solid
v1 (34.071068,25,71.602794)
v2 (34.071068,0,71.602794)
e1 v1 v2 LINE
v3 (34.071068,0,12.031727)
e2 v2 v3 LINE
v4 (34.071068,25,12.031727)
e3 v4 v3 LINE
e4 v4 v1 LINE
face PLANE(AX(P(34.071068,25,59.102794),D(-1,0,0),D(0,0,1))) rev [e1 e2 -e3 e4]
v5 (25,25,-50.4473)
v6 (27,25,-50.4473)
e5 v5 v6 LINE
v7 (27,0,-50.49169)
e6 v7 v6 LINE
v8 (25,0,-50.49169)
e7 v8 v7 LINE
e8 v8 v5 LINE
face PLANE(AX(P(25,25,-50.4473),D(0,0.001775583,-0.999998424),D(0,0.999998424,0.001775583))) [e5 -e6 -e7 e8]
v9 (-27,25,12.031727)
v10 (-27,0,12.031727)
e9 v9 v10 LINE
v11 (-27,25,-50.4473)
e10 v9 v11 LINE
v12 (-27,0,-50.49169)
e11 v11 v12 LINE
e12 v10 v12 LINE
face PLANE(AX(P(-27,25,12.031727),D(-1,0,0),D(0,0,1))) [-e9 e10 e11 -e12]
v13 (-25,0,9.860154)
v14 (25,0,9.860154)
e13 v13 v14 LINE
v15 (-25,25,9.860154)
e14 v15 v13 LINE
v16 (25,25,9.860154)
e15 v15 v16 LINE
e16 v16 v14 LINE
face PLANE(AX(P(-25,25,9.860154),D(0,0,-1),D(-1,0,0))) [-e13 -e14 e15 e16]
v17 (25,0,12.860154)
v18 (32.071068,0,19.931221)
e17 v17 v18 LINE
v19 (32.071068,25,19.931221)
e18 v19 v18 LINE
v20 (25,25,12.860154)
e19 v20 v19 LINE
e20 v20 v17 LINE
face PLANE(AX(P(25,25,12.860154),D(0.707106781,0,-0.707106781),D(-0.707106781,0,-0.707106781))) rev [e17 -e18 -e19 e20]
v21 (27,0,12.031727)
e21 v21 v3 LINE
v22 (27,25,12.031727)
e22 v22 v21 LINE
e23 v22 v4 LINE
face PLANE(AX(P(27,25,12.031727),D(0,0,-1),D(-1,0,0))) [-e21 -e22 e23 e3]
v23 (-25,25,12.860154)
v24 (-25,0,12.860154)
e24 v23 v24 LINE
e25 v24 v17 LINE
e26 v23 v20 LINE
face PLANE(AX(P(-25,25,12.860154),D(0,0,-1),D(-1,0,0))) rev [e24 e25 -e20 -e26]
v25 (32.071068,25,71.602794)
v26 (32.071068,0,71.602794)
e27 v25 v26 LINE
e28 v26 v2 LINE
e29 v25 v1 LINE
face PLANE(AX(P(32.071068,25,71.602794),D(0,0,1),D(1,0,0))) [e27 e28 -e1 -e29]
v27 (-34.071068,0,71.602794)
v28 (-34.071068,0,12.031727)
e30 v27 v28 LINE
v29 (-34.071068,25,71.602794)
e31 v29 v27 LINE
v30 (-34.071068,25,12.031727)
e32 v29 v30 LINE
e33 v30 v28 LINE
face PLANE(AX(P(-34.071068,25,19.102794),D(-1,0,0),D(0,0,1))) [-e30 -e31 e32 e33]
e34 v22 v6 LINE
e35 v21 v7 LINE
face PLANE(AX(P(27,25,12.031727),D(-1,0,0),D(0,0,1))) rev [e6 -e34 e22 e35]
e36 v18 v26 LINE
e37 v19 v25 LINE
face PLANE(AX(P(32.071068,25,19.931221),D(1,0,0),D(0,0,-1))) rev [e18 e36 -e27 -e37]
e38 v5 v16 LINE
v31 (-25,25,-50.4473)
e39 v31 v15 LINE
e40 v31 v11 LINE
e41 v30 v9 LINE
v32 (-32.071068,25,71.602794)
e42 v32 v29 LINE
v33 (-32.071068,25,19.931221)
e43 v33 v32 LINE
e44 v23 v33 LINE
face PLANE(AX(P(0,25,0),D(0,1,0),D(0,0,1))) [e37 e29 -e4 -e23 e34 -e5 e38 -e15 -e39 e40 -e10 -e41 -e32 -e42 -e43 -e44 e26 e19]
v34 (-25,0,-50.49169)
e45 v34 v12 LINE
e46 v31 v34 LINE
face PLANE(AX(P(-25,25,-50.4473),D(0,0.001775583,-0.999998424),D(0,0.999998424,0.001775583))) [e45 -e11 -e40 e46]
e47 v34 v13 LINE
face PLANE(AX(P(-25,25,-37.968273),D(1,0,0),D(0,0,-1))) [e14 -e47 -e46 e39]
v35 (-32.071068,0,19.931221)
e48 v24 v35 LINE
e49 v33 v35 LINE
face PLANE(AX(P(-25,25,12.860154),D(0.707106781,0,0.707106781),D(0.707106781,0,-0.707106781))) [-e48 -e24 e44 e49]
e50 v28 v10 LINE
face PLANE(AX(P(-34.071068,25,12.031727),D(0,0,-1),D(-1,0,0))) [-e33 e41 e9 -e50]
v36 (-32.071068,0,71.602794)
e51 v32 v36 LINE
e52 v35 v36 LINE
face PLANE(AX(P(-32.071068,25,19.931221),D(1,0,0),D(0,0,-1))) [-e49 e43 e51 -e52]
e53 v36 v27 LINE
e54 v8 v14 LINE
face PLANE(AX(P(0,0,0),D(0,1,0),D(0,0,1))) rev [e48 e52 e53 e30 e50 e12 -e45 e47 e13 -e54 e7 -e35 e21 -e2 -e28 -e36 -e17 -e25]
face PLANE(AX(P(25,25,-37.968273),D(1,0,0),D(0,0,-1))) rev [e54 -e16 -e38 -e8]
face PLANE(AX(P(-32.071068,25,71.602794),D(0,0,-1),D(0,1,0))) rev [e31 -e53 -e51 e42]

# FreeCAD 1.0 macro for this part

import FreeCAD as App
import Part
import Sketcher

V = App.Vector
Q = App.Units.Quantity

doc = App.newDocument("Part")
body = doc.addObject("PartDesign::Body", "Body")

sketch1 = body.newObject("Sketcher::SketchObject", "Sketch")
sketch1.AttachmentSupport = (doc.getObject("XZ_Plane"), [""])
sketch1.MapMode = "FlatFace"
sketch1.addGeometry(Part.LineSegment(V(-34.071068, 12.031727, 0), V(-34.071068, 59.102794, 0)), False)
sketch1.addGeometry(Part.LineSegment(V(-34.071068, 59.102794, 0), V(-32.071068, 59.102794, 0)), False)
sketch1.addGeometry(Part.LineSegment(V(-32.071068, 59.102794, 0), V(-32.071068, 19.931221, 0)), False)
sketch1.addGeometry(Part.LineSegment(V(-32.071068, 19.931221, 0), V(-25, 12.860154, 0)), False)
sketch1.addGeometry(Part.LineSegment(V(-25, 12.860154, 0), V(25, 12.860154, 0)), False)
sketch1.addGeometry(Part.LineSegment(V(25, 12.860154, 0), V(32.071068, 19.931221, 0)), False)
sketch1.addGeometry(Part.LineSegment(V(32.071068, 19.931221, 0), V(32.071068, 59.102794, 0)), False)
sketch1.addGeometry(Part.LineSegment(V(32.071068, 59.102794, 0), V(34.071068, 59.102794, 0)), False)
sketch1.addGeometry(Part.LineSegment(V(34.071068, 59.102794, 0), V(34.071068, 12.031727, 0)), False)
sketch1.addGeometry(Part.LineSegment(V(34.071068, 12.031727, 0), V(27, 12.031727, 0)), False)
sketch1.addGeometry(Part.LineSegment(V(27, 12.031727, 0), V(27, -37.968273, 0)), False)
sketch1.addGeometry(Part.LineSegment(V(27, -37.968273, 0), V(25, -37.968273, 0)), False)
sketch1.addGeometry(Part.LineSegment(V(25, -37.968273, 0), V(25, 9.860154, 0)), False)
sketch1.addGeometry(Part.LineSegment(V(25, 9.860154, 0), V(-25, 9.860154, 0)), False)
sketch1.addGeometry(Part.LineSegment(V(-25, 9.860154, 0), V(-25, -37.968273, 0)), False)
sketch1.addGeometry(Part.LineSegment(V(-25, -37.968273, 0), V(-27, -37.968273, 0)), False)
sketch1.addGeometry(Part.LineSegment(V(-27, -37.968273, 0), V(-27, 12.031727, 0)), False)
sketch1.addGeometry(Part.LineSegment(V(-27, 12.031727, 0), V(-34.071068, 12.031727, 0)), False)
sketch1.addConstraint(Sketcher.Constraint("Coincident", 0, 2, 1, 1))
sketch1.addConstraint(Sketcher.Constraint("Coincident", 1, 2, 2, 1))
sketch1.addConstraint(Sketcher.Constraint("Coincident", 2, 2, 3, 1))
sketch1.addConstraint(Sketcher.Constraint("Coincident", 3, 2, 4, 1))
sketch1.addConstraint(Sketcher.Constraint("Coincident", 4, 2, 5, 1))
sketch1.addConstraint(Sketcher.Constraint("Coincident", 5, 2, 6, 1))
sketch1.addConstraint(Sketcher.Constraint("Coincident", 6, 2, 7, 1))
sketch1.addConstraint(Sketcher.Constraint("Coincident", 7, 2, 8, 1))
sketch1.addConstraint(Sketcher.Constraint("Coincident", 8, 2, 9, 1))
sketch1.addConstraint(Sketcher.Constraint("Coincident", 9, 2, 10, 1))
sketch1.addConstraint(Sketcher.Constraint("Coincident", 10, 2, 11, 1))
sketch1.addConstraint(Sketcher.Constraint("Coincident", 11, 2, 12, 1))
sketch1.addConstraint(Sketcher.Constraint("Coincident", 12, 2, 13, 1))
sketch1.addConstraint(Sketcher.Constraint("Coincident", 13, 2, 14, 1))
sketch1.addConstraint(Sketcher.Constraint("Coincident", 14, 2, 15, 1))
sketch1.addConstraint(Sketcher.Constraint("Coincident", 15, 2, 16, 1))
sketch1.addConstraint(Sketcher.Constraint("Coincident", 16, 2, 17, 1))
sketch1.addConstraint(Sketcher.Constraint("Coincident", 17, 2, 0, 1))
sketch1.addConstraint(Sketcher.Constraint("Vertical", 0))
sketch1.addConstraint(Sketcher.Constraint("Horizontal", 1))
sketch1.addConstraint(Sketcher.Constraint("Vertical", 2))
sketch1.addConstraint(Sketcher.Constraint("Horizontal", 4))
sketch1.addConstraint(Sketcher.Constraint("Vertical", 6))
sketch1.addConstraint(Sketcher.Constraint("Horizontal", 7))
sketch1.addConstraint(Sketcher.Constraint("Vertical", 8))
sketch1.addConstraint(Sketcher.Constraint("Horizontal", 9))
sketch1.addConstraint(Sketcher.Constraint("Vertical", 10))
sketch1.addConstraint(Sketcher.Constraint("Horizontal", 11))
sketch1.addConstraint(Sketcher.Constraint("Vertical", 12))
sketch1.addConstraint(Sketcher.Constraint("Horizontal", 13))
sketch1.addConstraint(Sketcher.Constraint("Vertical", 14))
sketch1.addConstraint(Sketcher.Constraint("Horizontal", 15))
sketch1.addConstraint(Sketcher.Constraint("Vertical", 16))
sketch1.addConstraint(Sketcher.Constraint("Horizontal", 17))
sketch1.addConstraint(Sketcher.Constraint("Symmetric", 2, 2, 5, 2, -2))
sketch1.addConstraint(Sketcher.Constraint("Symmetric", 0, 2, 7, 2, -2))
sketch1.addConstraint(Sketcher.Constraint("Symmetric", 11, 2, 14, 2, -2))
sketch1.addConstraint(Sketcher.Constraint("Symmetric", 9, 2, 16, 2, -2))
sketch1.addConstraint(Sketcher.Constraint("Perpendicular", 3, 5))
sketch1.addConstraint(Sketcher.Constraint("Vertical", 4, 2, 11, 2))
sketch1.addConstraint(Sketcher.Constraint("Vertical", 3, 2, 13, 2))
sketch1.addConstraint(Sketcher.Constraint("Equal", 7, 11))
sketch1.addConstraint(Sketcher.Constraint("Equal", 13, 10))
sketch1.addConstraint(Sketcher.Constraint("DistanceX", 1, 1, 1, 2, Q("2 mm")))
sketch1.addConstraint(Sketcher.Constraint("DistanceX", 4, 1, 4, 2, Q("50 mm")))
sketch1.addConstraint(Sketcher.Constraint("Distance", 3, Q("10 mm")))
sketch1.addConstraint(Sketcher.Constraint("DistanceY", 12, 2, 4, 2, Q("3 mm")))
sketch1.addConstraint(Sketcher.Constraint("DistanceY", 0, 1, 0, 2, Q("47.071068 mm")))
sketch1.addConstraint(Sketcher.Constraint("DistanceY", 2, 2, 2, 1, Q("39.171573 mm")))
sketch1.addConstraint(Sketcher.Constraint("DistanceY", -1, 1, 2, 2, Q("19.931221 mm")))
pad1 = body.newObject("PartDesign::Pad", "Pad")
pad1.Profile = sketch1
pad1.Length = 25
pad1.Reversed = True

sketch2 = body.newObject("Sketcher::SketchObject", "Sketch001")
sketch2.AttachmentSupport = (doc.getObject("YZ_Plane"), [""])
sketch2.MapMode = "FlatFace"
sketch2.AttachmentOffset = App.Placement(V(0, 0, 34.071068), App.Rotation())
sketch2.addGeometry(Part.LineSegment(V(25, 71.602794, 0), V(0, 71.602794, 0)), False)
sketch2.addGeometry(Part.LineSegment(V(0, 71.602794, 0), V(0, 12.031727, 0)), False)
sketch2.addGeometry(Part.LineSegment(V(0, 12.031727, 0), V(25, 12.031727, 0)), False)
sketch2.addGeometry(Part.LineSegment(V(25, 12.031727, 0), V(25, 71.602794, 0)), False)
sketch2.addConstraint(Sketcher.Constraint("Coincident", 0, 2, 1, 1))
sketch2.addConstraint(Sketcher.Constraint("Coincident", 1, 2, 2, 1))
sketch2.addConstraint(Sketcher.Constraint("Coincident", 2, 2, 3, 1))
sketch2.addConstraint(Sketcher.Constraint("Coincident", 3, 2, 0, 1))
sketch2.addConstraint(Sketcher.Constraint("Horizontal", 0))
sketch2.addConstraint(Sketcher.Constraint("Vertical", 1))
sketch2.addConstraint(Sketcher.Constraint("Horizontal", 2))
sketch2.addConstraint(Sketcher.Constraint("Vertical", 3))
sketch2.addConstraint(Sketcher.Constraint("PointOnObject", 0, 2, -2))
sketch2.addConstraint(Sketcher.Constraint("DistanceX", 0, 2, 0, 1, Q("25 mm")))
sketch2.addConstraint(Sketcher.Constraint("DistanceY", 1, 2, 1, 1, Q("59.571068 mm")))
sketch2.addConstraint(Sketcher.Constraint("DistanceY", -1, 1, 0, 2, Q("71.602794 mm")))
pad2 = body.newObject("PartDesign::Pad", "Pad001")
pad2.Profile = sketch2
pad2.Length = 2
pad2.Reversed = True

sketch3 = body.newObject("Sketcher::SketchObject", "Sketch002")
sketch3.AttachmentSupport = (doc.getObject("YZ_Plane"), [""])
sketch3.MapMode = "FlatFace"
sketch3.AttachmentOffset = App.Placement(V(0, 0, 27), App.Rotation())
sketch3.addGeometry(Part.LineSegment(V(25, -50.4473, 0), V(25, -37.9473, 0)), False)
sketch3.addGeometry(Part.LineSegment(V(25, -37.9473, 0), V(0, -37.9473, 0)), False)
sketch3.addGeometry(Part.LineSegment(V(0, -37.9473, 0), V(0, -50.49169, 0)), False)
sketch3.addGeometry(Part.LineSegment(V(0, -50.49169, 0), V(25, -50.4473, 0)), False)
sketch3.addConstraint(Sketcher.Constraint("Coincident", 0, 2, 1, 1))
sketch3.addConstraint(Sketcher.Constraint("Coincident", 1, 2, 2, 1))
sketch3.addConstraint(Sketcher.Constraint("Coincident", 2, 2, 3, 1))
sketch3.addConstraint(Sketcher.Constraint("Coincident", 3, 2, 0, 1))
sketch3.addConstraint(Sketcher.Constraint("Vertical", 0))
sketch3.addConstraint(Sketcher.Constraint("Horizontal", 1))
sketch3.addConstraint(Sketcher.Constraint("Vertical", 2))
sketch3.addConstraint(Sketcher.Constraint("PointOnObject", 1, 2, -2))
sketch3.addConstraint(Sketcher.Constraint("DistanceX", 1, 2, 1, 1, Q("25 mm")))
sketch3.addConstraint(Sketcher.Constraint("DistanceY", 0, 1, 0, 2, Q("12.5 mm")))
sketch3.addConstraint(Sketcher.Constraint("DistanceY", 2, 2, 2, 1, Q("12.54439 mm")))
sketch3.addConstraint(Sketcher.Constraint("DistanceY", 0, 2, -1, 1, Q("37.9473 mm")))
pad3 = body.newObject("PartDesign::Pad", "Pad002")
pad3.Profile = sketch3
pad3.Length = 2
pad3.Reversed = True

sketch4 = body.newObject("Sketcher::SketchObject", "Sketch003")
sketch4.AttachmentSupport = (doc.getObject("YZ_Plane"), [""])
sketch4.MapMode = "FlatFace"
sketch4.AttachmentOffset = App.Placement(V(0, 0, -27), App.Rotation())
sketch4.addGeometry(Part.LineSegment(V(0, -37.968273, 0), V(25, -37.968273, 0)), False)
sketch4.addGeometry(Part.LineSegment(V(25, -37.968273, 0), V(25, -50.4473, 0)), False)
sketch4.addGeometry(Part.LineSegment(V(25, -50.4473, 0), V(0, -50.49169, 0)), False)
sketch4.addGeometry(Part.LineSegment(V(0, -50.49169, 0), V(0, -37.968273, 0)), False)
sketch4.addConstraint(Sketcher.Constraint("Coincident", 0, 2, 1, 1))
sketch4.addConstraint(Sketcher.Constraint("Coincident", 1, 2, 2, 1))
sketch4.addConstraint(Sketcher.Constraint("Coincident", 2, 2, 3, 1))
sketch4.addConstraint(Sketcher.Constraint("Coincident", 3, 2, 0, 1))
sketch4.addConstraint(Sketcher.Constraint("Horizontal", 0))
sketch4.addConstraint(Sketcher.Constraint("Vertical", 1))
sketch4.addConstraint(Sketcher.Constraint("Vertical", 3))
sketch4.addConstraint(Sketcher.Constraint("PointOnObject", 2, 2, -2))
sketch4.addConstraint(Sketcher.Constraint("DistanceX", 0, 1, 0, 2, Q("25 mm")))
sketch4.addConstraint(Sketcher.Constraint("DistanceY", 1, 2, -1, 1, Q("50.4473 mm")))
sketch4.addConstraint(Sketcher.Constraint("DistanceY", 1, 2, 1, 1, Q("12.479027 mm")))
sketch4.addConstraint(Sketcher.Constraint("DistanceY", 3, 1, 3, 2, Q("12.523417 mm")))
pad4 = body.newObject("PartDesign::Pad", "Pad003")
pad4.Profile = sketch4
pad4.Length = 2

sketch5 = body.newObject("Sketcher::SketchObject", "Sketch004")
sketch5.AttachmentSupport = (doc.getObject("YZ_Plane"), [""])
sketch5.MapMode = "FlatFace"
sketch5.AttachmentOffset = App.Placement(V(0, 0, -34.071068), App.Rotation())
sketch5.addGeometry(Part.LineSegment(V(25, 59.102794, 0), V(0, 59.102794, 0)), False)
sketch5.addGeometry(Part.LineSegment(V(0, 59.102794, 0), V(0, 71.602794, 0)), False)
sketch5.addGeometry(Part.LineSegment(V(0, 71.602794, 0), V(25, 71.602794, 0)), False)
sketch5.addGeometry(Part.LineSegment(V(25, 71.602794, 0), V(25, 59.102794, 0)), False)
sketch5.addConstraint(Sketcher.Constraint("Coincident", 0, 2, 1, 1))
sketch5.addConstraint(Sketcher.Constraint("Coincident", 1, 2, 2, 1))
sketch5.addConstraint(Sketcher.Constraint("Coincident", 2, 2, 3, 1))
sketch5.addConstraint(Sketcher.Constraint("Coincident", 3, 2, 0, 1))
sketch5.addConstraint(Sketcher.Constraint("Horizontal", 0))
sketch5.addConstraint(Sketcher.Constraint("Vertical", 1))
sketch5.addConstraint(Sketcher.Constraint("Horizontal", 2))
sketch5.addConstraint(Sketcher.Constraint("Vertical", 3))
sketch5.addConstraint(Sketcher.Constraint("PointOnObject", 0, 2, -2))
sketch5.addConstraint(Sketcher.Constraint("DistanceX", 0, 2, 0, 1, Q("25 mm")))
sketch5.addConstraint(Sketcher.Constraint("DistanceY", 1, 1, 1, 2, Q("12.5 mm")))
sketch5.addConstraint(Sketcher.Constraint("DistanceY", -1, 1, 0, 2, Q("59.102794 mm")))
pad5 = body.newObject("PartDesign::Pad", "Pad004")
pad5.Profile = sketch5
pad5.Length = 2

doc.recompute()
